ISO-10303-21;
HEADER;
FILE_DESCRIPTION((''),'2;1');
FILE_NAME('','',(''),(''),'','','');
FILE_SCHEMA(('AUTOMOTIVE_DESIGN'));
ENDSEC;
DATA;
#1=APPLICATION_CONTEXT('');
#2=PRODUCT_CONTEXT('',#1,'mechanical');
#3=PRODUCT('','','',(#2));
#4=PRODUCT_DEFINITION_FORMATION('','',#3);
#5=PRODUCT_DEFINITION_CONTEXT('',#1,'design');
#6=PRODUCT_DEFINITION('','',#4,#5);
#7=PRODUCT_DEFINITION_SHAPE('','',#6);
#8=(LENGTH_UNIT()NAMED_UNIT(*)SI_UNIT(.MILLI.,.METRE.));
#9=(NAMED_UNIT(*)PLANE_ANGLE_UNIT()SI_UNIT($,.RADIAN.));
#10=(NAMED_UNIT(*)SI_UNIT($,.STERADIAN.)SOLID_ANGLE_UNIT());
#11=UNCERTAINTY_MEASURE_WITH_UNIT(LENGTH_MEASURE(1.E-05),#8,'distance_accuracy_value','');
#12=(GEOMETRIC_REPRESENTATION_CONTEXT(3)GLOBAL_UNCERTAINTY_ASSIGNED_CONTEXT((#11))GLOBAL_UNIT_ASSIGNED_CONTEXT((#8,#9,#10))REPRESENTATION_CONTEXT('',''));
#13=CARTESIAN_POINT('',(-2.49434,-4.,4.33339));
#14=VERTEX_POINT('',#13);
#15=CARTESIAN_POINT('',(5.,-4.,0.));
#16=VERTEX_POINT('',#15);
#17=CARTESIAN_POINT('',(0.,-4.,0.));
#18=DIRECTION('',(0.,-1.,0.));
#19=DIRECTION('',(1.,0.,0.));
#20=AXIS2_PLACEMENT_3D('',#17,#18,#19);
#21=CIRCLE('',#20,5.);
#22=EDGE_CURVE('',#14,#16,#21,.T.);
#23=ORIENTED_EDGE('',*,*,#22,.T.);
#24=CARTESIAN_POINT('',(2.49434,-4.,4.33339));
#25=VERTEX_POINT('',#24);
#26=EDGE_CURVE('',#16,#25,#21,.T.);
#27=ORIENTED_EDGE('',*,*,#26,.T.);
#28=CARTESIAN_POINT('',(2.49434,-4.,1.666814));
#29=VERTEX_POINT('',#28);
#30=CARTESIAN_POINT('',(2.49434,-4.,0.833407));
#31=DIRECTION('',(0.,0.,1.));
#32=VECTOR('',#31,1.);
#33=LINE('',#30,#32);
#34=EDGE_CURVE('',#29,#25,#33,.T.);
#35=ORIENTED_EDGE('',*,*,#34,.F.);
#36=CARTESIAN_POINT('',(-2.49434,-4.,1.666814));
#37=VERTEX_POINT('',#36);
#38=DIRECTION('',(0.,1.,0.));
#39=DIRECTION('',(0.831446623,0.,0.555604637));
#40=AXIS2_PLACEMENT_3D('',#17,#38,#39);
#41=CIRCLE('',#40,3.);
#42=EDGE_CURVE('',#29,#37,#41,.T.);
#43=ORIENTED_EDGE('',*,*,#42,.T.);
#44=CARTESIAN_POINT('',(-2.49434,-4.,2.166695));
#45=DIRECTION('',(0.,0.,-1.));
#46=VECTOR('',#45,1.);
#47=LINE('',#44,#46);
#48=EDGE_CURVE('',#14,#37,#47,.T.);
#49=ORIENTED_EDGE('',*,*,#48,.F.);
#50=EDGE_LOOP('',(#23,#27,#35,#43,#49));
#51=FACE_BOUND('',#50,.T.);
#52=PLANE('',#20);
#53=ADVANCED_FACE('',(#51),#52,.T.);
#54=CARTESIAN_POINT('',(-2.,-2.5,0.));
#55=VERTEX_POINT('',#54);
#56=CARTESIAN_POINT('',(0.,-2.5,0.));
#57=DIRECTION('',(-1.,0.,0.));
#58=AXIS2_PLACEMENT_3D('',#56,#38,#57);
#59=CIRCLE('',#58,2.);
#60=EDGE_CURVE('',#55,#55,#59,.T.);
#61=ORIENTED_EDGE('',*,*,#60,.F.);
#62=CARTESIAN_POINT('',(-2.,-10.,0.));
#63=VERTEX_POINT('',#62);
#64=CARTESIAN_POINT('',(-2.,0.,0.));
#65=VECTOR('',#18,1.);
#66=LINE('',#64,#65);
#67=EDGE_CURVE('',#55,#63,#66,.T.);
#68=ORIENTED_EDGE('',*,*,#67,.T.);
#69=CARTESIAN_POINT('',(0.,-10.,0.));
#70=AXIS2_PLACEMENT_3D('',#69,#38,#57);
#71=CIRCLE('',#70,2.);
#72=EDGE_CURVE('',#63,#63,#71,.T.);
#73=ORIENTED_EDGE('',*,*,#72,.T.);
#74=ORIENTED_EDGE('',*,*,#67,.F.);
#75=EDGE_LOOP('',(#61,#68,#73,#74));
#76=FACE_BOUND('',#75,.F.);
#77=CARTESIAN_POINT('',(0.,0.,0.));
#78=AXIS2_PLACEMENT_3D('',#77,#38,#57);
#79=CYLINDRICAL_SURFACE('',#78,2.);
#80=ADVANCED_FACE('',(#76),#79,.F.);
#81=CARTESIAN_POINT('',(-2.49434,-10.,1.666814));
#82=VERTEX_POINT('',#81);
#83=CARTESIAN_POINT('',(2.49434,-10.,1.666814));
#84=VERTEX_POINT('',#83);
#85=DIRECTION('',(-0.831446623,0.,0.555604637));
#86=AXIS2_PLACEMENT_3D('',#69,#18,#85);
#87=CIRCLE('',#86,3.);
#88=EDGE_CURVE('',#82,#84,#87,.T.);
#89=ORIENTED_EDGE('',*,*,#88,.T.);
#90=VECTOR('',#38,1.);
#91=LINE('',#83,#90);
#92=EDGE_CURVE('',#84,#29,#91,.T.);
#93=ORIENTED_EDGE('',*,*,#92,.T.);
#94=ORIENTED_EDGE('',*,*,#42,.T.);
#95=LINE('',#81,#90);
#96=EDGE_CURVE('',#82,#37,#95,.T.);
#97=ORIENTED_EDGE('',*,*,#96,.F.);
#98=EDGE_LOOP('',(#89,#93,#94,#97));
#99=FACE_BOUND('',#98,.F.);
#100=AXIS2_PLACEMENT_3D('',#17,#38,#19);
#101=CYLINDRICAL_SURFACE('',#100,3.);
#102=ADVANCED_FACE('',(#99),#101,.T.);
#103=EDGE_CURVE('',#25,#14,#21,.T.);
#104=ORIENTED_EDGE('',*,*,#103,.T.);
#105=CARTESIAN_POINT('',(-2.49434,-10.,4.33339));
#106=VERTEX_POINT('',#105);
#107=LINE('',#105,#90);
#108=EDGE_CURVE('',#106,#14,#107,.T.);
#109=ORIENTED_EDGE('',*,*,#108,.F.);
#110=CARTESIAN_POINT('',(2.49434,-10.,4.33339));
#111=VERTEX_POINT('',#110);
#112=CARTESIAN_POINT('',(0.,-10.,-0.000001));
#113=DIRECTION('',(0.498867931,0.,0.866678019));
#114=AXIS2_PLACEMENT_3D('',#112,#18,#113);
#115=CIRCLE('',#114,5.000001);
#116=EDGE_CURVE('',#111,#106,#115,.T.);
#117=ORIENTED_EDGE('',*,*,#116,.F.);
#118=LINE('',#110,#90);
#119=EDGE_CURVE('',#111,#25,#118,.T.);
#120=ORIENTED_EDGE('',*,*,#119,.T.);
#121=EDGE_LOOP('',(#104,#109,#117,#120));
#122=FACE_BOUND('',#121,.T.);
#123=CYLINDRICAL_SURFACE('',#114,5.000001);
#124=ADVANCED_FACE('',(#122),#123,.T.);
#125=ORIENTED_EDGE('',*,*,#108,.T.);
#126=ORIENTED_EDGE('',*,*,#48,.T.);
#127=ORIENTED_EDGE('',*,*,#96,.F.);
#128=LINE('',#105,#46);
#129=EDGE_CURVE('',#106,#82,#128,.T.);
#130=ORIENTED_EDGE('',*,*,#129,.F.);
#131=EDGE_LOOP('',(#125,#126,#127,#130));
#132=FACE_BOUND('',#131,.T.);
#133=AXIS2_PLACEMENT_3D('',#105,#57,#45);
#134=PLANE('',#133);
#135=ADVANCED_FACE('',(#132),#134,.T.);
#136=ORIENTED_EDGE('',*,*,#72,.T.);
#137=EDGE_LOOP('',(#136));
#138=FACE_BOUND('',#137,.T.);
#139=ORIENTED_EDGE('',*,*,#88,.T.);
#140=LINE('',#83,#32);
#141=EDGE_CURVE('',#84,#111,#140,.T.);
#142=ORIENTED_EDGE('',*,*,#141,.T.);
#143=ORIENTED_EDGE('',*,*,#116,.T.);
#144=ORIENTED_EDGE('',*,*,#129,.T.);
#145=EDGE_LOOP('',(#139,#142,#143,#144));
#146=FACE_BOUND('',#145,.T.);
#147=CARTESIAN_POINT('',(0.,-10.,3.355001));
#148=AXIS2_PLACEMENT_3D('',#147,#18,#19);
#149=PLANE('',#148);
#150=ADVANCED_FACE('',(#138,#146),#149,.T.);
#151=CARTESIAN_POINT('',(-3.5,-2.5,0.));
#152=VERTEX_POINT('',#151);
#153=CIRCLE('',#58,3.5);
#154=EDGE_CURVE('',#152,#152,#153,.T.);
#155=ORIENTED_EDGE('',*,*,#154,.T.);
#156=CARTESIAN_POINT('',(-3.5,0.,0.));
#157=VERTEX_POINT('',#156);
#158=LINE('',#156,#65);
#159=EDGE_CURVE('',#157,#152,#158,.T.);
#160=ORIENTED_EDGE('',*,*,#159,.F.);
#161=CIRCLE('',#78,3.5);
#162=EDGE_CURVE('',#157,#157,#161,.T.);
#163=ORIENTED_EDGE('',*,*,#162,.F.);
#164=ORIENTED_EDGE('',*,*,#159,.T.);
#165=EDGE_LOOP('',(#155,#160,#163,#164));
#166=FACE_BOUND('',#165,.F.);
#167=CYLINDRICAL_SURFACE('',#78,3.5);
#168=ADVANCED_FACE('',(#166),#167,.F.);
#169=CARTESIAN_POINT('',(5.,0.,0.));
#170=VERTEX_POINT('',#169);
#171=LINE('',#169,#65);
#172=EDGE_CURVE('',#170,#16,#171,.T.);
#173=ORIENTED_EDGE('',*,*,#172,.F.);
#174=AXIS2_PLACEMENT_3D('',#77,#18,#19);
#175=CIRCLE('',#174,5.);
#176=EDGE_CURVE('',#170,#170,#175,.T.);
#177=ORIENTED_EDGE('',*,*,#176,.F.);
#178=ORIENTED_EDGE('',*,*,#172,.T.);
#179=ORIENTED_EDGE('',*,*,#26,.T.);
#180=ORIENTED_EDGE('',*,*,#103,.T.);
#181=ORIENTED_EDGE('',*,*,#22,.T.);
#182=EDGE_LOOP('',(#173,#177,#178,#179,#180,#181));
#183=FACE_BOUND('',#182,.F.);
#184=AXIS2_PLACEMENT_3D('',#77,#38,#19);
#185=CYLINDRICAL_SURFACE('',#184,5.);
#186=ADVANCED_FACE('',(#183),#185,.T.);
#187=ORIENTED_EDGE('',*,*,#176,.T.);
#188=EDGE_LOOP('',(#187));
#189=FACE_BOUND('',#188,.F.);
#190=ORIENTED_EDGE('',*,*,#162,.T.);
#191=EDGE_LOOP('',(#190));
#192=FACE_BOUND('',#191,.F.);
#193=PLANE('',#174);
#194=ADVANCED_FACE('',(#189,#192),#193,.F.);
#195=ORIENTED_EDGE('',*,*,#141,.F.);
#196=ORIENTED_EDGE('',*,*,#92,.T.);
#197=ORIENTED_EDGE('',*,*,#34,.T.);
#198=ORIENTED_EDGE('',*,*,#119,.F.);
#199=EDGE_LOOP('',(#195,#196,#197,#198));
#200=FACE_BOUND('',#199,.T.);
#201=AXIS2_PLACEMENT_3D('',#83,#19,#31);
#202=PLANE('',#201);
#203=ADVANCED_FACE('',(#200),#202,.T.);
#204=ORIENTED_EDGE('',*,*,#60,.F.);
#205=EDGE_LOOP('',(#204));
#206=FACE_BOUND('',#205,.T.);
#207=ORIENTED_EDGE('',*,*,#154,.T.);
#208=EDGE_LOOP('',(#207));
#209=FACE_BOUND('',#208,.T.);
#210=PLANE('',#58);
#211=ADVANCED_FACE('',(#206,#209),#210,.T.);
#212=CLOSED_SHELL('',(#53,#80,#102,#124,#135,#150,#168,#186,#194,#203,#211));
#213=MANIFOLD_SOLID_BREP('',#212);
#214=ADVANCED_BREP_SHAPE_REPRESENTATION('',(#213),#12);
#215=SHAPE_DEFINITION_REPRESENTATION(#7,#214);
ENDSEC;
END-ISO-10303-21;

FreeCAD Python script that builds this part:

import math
import FreeCAD as App
import Part
import Sketcher
from FreeCAD import Vector

doc = App.newDocument("Part")
body = doc.addObject("PartDesign::Body", "Body")

# Sketch on XZ plane
sketch1 = doc.addObject("Sketcher::SketchObject", "Sketch")
body.addObject(sketch1)
sketch1.AttachmentSupport = (doc.XZ_Plane, [""])
sketch1.MapMode = "FlatFace"
sketch1.addGeometry(Part.Circle(Vector(0, 0, 0), Vector(0, 0, 1), 5), False)
sketch1.addConstraint(Sketcher.Constraint("Coincident", 0, 3, -1, 1))
sketch1.addConstraint(Sketcher.Constraint("Diameter", 0, 10.0))
pad1 = doc.addObject("PartDesign::Pad", "Pad")
body.addObject(pad1)
pad1.Profile = sketch1
pad1.Length = 4

# Sketch on XZ plane
sketch2 = doc.addObject("Sketcher::SketchObject", "Sketch001")
body.addObject(sketch2)
sketch2.AttachmentSupport = (doc.XZ_Plane, [""])
sketch2.MapMode = "FlatFace"
sketch2.AttachmentOffset = App.Placement(Vector(0, 0, 4), App.Rotation())
sketch2.addGeometry(Part.Circle(Vector(0, 0, 0), Vector(0, 0, 1), 3), False)
sketch2.addConstraint(Sketcher.Constraint("Coincident", 0, 3, -1, 1))
sketch2.addConstraint(Sketcher.Constraint("Diameter", 0, 6.0))
pad2 = doc.addObject("PartDesign::Pad", "Pad001")
body.addObject(pad2)
pad2.Profile = sketch2
pad2.Length = 6

# Sketch on XZ plane
sketch3 = doc.addObject("Sketcher::SketchObject", "Sketch002")
body.addObject(sketch3)
sketch3.AttachmentSupport = (doc.XZ_Plane, [""])
sketch3.MapMode = "FlatFace"
sketch3.addGeometry(Part.Circle(Vector(0, 0, 0), Vector(0, 0, 1), 2), False)
sketch3.addConstraint(Sketcher.Constraint("Coincident", 0, 3, -1, 1))
sketch3.addConstraint(Sketcher.Constraint("Diameter", 0, 4.0))
pocket1 = doc.addObject("PartDesign::Pocket", "Pocket")
body.addObject(pocket1)
pocket1.Profile = sketch3
pocket1.Length = 25
pocket1.Reversed = True

# Sketch on XZ plane
sketch4 = doc.addObject("Sketcher::SketchObject", "Sketch003")
body.addObject(sketch4)
sketch4.AttachmentSupport = (doc.XZ_Plane, [""])
sketch4.MapMode = "FlatFace"
sketch4.addGeometry(Part.Circle(Vector(0, 0, 0), Vector(0, 0, 1), 3.5), False)
sketch4.addGeometry(Part.Circle(Vector(0, 0, 0), Vector(0, 0, 1), 2), False)
sketch4.addConstraint(Sketcher.Constraint("Coincident", 0, 3, -1, 1))
sketch4.addConstraint(Sketcher.Constraint("Coincident", 1, 3, -1, 1))
sketch4.addConstraint(Sketcher.Constraint("Diameter", 0, 7.0))
sketch4.addConstraint(Sketcher.Constraint("Diameter", 1, 4.0))
pocket2 = doc.addObject("PartDesign::Pocket", "Pocket001")
body.addObject(pocket2)
pocket2.Profile = sketch4
pocket2.Length = 2.5
pocket2.Reversed = True

# Sketch on XZ plane
sketch5 = doc.addObject("Sketcher::SketchObject", "Sketch004")
body.addObject(sketch5)
sketch5.AttachmentSupport = (doc.XZ_Plane, [""])
sketch5.MapMode = "FlatFace"
sketch5.AttachmentOffset = App.Placement(Vector(0, 0, 10), App.Rotation())
sketch5.addGeometry(Part.LineSegment(Vector(2.5, 1.7, 0), Vector(2.5, 4.3, 0)), False)
sketch5.addGeometry(Part.ArcOfCircle(Part.Circle(Vector(0, 0, 0), Vector(0, 0, 1), 5), math.radians(60), math.radians(120)), False)
sketch5.addGeometry(Part.LineSegment(Vector(-2.5, 4.3, 0), Vector(-2.5, 1.7, 0)), False)
sketch5.addGeometry(Part.ArcOfCircle(Part.Circle(Vector(0, 0, 0), Vector(0, 0, 1), 3), math.radians(34), math.radians(146)), False)
sketch5.addConstraint(Sketcher.Constraint("Coincident", 0, 2, 1, 1))
sketch5.addConstraint(Sketcher.Constraint("Coincident", 1, 2, 2, 1))
sketch5.addConstraint(Sketcher.Constraint("Coincident", 2, 2, 3, 2))
sketch5.addConstraint(Sketcher.Constraint("Coincident", 3, 1, 0, 1))
sketch5.addConstraint(Sketcher.Constraint("Vertical", 0))
sketch5.addConstraint(Sketcher.Constraint("Vertical", 2))
sketch5.addConstraint(Sketcher.Constraint("Coincident", 1, 3, -1, 1))
sketch5.addConstraint(Sketcher.Constraint("Coincident", 3, 3, -1, 1))
sketch5.addConstraint(Sketcher.Constraint("Horizontal", 0, 2, 1, 2))
sketch5.addConstraint(Sketcher.Constraint("Radius", 1, 5.000001))
sketch5.addConstraint(Sketcher.Constraint("Radius", 3, 3.0))
sketch5.addConstraint(Sketcher.Constraint("DistanceY", 0, 1, 0, 2, 2.666576))
pad3 = doc.addObject("PartDesign::Pad", "Pad002")
body.addObject(pad3)
pad3.Profile = sketch5
pad3.Length = 7
pad3.Reversed = True

doc.recompute()
